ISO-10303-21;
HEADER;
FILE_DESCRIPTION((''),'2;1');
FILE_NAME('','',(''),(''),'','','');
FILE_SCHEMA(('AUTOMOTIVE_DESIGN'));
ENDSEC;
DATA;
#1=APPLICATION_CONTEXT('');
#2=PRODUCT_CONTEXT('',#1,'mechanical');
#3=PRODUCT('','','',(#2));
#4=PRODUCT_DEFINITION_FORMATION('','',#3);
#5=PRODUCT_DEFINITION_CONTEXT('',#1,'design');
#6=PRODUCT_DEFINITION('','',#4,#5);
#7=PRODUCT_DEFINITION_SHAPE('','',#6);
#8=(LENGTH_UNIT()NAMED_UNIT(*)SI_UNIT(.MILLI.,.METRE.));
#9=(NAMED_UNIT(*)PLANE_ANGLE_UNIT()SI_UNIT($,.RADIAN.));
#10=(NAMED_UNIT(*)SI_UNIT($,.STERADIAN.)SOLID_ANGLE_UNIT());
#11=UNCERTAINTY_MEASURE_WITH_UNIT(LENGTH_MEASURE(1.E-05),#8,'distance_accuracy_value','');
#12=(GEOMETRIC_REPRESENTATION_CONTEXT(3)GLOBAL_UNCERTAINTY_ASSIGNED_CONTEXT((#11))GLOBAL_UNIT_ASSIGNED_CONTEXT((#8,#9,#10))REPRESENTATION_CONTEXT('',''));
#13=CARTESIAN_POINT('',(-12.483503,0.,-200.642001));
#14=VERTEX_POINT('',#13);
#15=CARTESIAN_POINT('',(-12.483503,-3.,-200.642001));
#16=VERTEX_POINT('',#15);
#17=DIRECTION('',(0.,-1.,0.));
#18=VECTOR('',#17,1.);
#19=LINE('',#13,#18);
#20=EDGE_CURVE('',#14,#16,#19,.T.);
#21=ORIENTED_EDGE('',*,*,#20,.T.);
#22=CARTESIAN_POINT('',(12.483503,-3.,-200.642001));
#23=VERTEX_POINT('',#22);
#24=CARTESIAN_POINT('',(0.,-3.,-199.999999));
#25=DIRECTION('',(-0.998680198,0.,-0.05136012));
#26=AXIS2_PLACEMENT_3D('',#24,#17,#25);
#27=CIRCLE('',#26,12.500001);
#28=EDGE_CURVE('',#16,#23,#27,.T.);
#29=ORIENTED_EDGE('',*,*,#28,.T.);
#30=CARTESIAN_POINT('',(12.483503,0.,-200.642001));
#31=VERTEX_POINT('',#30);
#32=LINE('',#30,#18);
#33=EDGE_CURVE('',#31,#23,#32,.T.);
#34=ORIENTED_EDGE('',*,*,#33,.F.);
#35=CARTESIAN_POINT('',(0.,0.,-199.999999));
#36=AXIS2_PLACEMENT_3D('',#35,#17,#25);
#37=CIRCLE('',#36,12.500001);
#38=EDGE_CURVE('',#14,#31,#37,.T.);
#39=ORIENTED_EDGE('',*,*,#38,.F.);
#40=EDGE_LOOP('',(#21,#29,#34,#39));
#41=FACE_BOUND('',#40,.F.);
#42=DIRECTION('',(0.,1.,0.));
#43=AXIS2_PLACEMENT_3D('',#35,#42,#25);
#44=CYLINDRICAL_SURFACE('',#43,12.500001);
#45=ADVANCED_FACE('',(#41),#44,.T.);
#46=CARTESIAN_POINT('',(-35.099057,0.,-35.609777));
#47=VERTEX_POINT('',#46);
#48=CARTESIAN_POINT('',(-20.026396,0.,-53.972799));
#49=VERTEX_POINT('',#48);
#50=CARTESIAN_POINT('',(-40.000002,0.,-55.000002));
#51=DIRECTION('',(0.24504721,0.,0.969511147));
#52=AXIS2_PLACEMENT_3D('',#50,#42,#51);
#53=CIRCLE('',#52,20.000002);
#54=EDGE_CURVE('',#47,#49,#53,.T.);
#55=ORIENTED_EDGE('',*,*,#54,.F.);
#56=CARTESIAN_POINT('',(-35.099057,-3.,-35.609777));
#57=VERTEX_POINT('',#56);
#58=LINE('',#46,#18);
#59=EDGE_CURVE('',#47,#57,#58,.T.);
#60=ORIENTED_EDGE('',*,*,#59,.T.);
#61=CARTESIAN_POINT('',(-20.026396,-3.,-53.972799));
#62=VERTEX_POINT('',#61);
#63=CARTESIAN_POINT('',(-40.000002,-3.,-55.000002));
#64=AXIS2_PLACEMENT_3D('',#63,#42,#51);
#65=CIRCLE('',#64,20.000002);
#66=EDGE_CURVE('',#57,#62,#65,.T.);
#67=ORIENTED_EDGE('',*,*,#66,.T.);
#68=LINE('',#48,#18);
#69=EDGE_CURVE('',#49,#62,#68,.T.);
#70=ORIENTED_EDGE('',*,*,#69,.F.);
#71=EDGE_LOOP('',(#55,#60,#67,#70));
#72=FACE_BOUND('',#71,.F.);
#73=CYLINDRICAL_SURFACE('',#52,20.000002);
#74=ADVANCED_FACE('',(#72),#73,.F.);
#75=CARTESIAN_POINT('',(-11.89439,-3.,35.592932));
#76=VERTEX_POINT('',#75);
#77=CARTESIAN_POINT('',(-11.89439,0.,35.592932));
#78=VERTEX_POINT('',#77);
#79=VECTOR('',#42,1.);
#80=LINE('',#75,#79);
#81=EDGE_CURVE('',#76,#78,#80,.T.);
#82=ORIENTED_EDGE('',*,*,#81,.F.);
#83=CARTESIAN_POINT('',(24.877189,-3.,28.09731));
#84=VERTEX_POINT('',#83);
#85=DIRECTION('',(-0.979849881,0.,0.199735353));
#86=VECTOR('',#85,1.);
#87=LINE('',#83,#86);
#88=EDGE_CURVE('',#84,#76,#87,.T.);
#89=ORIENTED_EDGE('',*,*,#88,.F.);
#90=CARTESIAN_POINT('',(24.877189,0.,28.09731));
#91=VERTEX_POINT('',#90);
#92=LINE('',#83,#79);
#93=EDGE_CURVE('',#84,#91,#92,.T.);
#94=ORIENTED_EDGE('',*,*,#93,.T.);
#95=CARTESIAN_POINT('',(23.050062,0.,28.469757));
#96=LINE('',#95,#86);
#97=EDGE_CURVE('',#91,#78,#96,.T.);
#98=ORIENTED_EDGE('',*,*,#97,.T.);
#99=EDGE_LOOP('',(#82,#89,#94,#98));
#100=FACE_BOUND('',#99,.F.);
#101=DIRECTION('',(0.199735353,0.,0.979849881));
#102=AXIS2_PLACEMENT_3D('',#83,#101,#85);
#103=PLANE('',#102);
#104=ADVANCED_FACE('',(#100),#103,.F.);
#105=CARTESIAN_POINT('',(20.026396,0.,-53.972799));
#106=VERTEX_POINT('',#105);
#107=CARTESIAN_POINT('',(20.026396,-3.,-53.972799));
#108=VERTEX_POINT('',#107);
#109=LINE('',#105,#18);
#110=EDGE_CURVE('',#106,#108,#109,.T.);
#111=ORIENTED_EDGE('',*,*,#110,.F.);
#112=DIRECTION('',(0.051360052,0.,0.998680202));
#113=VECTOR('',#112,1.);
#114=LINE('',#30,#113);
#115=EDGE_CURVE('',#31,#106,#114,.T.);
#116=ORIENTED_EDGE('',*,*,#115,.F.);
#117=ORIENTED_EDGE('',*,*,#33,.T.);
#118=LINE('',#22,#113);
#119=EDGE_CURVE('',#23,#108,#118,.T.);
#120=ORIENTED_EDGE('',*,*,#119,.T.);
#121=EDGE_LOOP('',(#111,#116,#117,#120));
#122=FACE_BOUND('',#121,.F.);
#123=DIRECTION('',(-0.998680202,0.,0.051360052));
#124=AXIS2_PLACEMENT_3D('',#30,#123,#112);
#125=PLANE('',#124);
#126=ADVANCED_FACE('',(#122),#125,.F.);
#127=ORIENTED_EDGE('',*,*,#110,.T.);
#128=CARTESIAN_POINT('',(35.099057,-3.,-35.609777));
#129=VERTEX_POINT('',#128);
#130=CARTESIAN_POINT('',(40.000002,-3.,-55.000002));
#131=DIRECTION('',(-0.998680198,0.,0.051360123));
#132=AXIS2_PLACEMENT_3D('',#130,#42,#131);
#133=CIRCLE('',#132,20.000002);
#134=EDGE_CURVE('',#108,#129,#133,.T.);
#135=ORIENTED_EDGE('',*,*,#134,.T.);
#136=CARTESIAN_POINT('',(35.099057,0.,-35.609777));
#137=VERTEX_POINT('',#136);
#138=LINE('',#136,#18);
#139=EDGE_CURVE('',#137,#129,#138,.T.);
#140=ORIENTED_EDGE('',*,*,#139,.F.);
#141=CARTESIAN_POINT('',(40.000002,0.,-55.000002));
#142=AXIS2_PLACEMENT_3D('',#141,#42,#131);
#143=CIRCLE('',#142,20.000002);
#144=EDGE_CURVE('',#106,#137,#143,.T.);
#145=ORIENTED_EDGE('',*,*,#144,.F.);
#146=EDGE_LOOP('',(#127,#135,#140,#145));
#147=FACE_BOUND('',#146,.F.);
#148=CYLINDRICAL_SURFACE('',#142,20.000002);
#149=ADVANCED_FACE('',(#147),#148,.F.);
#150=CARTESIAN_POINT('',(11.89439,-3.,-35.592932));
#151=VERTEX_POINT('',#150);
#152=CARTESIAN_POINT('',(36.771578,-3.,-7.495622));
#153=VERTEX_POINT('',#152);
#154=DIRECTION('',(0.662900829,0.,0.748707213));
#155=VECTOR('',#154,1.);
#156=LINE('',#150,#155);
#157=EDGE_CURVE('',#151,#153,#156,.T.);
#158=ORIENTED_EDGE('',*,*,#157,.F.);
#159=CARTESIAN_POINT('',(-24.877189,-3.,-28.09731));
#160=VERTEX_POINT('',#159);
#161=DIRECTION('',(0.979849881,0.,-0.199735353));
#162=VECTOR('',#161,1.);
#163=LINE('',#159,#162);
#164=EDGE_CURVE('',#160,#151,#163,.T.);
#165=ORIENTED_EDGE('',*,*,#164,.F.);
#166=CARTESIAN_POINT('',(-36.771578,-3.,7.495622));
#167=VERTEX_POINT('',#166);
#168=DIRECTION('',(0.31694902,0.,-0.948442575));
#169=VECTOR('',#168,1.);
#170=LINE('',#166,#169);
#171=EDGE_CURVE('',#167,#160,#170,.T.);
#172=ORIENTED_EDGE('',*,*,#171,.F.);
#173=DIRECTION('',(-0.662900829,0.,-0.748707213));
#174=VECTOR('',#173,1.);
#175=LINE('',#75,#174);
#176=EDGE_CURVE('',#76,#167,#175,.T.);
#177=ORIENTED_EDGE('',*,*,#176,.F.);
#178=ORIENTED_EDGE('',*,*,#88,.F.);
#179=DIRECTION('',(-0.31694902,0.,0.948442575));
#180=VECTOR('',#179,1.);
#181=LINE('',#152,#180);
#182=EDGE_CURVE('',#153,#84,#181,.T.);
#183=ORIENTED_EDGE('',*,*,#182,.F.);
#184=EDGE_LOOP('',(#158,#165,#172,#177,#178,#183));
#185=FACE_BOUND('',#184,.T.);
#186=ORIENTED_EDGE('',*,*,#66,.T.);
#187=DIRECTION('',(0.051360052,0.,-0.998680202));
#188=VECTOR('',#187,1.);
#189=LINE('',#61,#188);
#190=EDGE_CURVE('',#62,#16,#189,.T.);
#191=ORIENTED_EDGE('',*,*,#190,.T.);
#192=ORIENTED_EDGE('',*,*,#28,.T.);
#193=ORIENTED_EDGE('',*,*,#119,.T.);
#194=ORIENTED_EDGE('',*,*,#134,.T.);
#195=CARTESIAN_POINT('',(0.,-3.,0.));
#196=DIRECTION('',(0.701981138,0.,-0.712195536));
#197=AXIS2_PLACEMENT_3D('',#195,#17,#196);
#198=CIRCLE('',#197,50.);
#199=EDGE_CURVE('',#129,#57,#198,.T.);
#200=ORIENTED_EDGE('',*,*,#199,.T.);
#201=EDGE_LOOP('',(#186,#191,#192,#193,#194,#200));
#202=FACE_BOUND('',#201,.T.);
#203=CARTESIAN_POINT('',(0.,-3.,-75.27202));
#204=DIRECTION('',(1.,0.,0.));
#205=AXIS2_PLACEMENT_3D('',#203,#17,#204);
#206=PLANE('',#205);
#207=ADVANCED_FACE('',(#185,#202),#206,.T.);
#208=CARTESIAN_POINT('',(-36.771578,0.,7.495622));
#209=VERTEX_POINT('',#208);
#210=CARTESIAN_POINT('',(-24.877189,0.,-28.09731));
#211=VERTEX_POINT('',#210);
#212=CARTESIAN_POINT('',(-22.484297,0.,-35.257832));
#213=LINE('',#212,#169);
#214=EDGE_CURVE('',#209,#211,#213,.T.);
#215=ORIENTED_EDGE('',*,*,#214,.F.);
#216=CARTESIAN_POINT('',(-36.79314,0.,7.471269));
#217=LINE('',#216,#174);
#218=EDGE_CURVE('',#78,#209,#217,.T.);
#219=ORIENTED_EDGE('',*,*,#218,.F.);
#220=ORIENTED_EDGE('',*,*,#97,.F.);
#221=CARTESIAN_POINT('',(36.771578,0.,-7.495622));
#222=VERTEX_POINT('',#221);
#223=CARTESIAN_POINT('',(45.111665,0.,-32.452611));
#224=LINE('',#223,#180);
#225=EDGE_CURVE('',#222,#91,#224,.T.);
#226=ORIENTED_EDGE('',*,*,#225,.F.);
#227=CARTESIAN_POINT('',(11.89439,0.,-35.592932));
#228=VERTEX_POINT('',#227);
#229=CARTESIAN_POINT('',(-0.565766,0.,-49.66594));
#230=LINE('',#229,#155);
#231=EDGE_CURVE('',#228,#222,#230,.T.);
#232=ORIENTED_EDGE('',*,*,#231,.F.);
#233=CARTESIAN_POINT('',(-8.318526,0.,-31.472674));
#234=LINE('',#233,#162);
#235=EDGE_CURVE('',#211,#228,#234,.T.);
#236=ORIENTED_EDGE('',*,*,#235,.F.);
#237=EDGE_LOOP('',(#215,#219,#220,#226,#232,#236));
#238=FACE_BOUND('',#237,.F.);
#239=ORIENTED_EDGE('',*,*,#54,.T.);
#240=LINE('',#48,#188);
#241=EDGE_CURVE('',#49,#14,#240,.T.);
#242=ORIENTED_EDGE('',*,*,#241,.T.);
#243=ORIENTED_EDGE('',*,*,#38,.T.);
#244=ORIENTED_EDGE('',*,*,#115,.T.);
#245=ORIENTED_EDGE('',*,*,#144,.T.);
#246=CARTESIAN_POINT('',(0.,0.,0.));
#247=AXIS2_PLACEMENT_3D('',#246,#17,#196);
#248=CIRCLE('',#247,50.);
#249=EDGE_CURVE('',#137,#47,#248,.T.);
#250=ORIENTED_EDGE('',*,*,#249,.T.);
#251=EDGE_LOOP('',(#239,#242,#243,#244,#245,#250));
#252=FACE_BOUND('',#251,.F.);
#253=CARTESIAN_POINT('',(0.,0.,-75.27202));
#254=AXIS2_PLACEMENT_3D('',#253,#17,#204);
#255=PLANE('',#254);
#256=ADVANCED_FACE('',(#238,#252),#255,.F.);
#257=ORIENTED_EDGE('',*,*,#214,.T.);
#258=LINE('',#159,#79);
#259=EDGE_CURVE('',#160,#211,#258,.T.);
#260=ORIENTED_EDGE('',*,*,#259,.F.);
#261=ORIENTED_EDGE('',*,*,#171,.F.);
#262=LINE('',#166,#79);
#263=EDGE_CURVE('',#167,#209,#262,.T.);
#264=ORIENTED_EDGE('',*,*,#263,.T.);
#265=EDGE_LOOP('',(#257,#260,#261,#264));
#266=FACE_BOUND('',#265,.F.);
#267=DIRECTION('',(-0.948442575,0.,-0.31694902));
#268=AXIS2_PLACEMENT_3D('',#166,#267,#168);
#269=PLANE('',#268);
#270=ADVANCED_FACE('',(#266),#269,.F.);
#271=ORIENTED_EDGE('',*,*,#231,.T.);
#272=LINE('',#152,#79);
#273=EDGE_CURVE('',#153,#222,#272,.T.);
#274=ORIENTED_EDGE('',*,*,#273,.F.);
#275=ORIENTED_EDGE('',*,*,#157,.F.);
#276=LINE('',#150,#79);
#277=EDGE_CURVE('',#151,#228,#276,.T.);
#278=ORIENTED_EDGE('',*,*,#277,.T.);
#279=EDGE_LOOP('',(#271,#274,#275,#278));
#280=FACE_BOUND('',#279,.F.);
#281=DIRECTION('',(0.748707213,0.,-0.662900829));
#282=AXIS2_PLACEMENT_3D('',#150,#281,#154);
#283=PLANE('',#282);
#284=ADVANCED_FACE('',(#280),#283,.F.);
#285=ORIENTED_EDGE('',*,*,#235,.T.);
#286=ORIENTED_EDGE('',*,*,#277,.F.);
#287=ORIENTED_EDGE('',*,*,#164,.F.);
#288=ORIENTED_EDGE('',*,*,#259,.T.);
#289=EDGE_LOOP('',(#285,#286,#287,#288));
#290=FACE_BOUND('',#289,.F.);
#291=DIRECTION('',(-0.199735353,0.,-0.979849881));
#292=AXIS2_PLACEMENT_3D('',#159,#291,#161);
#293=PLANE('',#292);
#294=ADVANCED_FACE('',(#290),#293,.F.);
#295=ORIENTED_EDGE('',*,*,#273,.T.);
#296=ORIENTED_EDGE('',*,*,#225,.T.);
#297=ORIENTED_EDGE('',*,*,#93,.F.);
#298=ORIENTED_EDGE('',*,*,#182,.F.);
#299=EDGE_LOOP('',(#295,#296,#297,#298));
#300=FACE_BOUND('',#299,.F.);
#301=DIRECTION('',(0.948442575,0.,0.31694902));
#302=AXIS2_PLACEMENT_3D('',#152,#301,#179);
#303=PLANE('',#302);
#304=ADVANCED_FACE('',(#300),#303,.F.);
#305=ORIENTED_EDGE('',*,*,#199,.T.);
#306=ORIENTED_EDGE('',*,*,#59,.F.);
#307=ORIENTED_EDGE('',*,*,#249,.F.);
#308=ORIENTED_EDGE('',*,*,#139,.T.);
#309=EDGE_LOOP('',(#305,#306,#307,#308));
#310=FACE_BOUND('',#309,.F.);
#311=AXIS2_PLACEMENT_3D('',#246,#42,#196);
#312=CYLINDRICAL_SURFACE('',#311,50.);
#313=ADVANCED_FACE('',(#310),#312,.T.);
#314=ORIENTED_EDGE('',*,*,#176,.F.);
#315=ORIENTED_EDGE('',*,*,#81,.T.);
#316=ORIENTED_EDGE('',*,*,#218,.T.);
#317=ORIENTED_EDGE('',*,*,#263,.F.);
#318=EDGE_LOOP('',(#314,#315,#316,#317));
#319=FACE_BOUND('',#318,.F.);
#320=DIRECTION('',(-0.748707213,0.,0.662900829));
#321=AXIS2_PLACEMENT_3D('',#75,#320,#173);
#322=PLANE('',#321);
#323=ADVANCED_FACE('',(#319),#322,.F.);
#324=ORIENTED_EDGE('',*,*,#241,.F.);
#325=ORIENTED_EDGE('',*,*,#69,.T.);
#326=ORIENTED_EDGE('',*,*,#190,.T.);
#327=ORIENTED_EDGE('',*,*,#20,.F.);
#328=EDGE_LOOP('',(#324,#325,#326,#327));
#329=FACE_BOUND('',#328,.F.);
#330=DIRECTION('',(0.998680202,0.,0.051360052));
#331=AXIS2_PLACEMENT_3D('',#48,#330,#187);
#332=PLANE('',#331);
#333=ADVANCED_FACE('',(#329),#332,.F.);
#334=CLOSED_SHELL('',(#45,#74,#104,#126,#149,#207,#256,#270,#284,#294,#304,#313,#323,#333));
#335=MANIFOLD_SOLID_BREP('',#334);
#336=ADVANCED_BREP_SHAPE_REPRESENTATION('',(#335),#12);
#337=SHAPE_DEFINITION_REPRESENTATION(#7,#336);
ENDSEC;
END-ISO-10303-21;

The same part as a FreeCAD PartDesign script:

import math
import FreeCAD as App
import Part
import Sketcher
Q = App.Units.Quantity

doc = App.newDocument("Part")
body = doc.addObject("PartDesign::Body", "Body")

sketch1 = body.newObject("Sketcher::SketchObject", "Sketch")
sketch1.AttachmentSupport = (doc.getObject("XZ_Plane"), [""])
sketch1.MapMode = "FlatFace"
sketch1.addGeometry([
    Part.ArcOfCircle(Part.Circle(App.Vector(-40.000002, -55.000002, 0), App.Vector(0, 0, 1), 20.000002), math.radians(2.944014), math.radians(75.815376)),
    Part.LineSegment(App.Vector(-20.026396, -53.972799, 0), App.Vector(-12.483503, -200.642001, 0)),
    Part.ArcOfCircle(Part.Circle(App.Vector(0, -199.999999, 0), App.Vector(0, 0, 1), 12.500001), math.radians(-177.055987), math.radians(-2.944013)),
    Part.LineSegment(App.Vector(12.483503, -200.642001, 0), App.Vector(20.026396, -53.972799, 0)),
    Part.ArcOfCircle(Part.Circle(App.Vector(40.000002, -55.000002, 0), App.Vector(0, 0, 1), 20.000002), math.radians(104.184624), math.radians(177.055986)),
    Part.ArcOfCircle(Part.Circle(App.Vector(0, 0, 0), App.Vector(0, 0, 1), 50), math.radians(-45.413832), math.radians(225.413832)),
], False)
sketch1.addConstraint([
    Sketcher.Constraint("Tangent", 0, 1, 1, 1),
    Sketcher.Constraint("Tangent", 1, 2, 2, 1),
    Sketcher.Constraint("Tangent", 2, 2, 3, 1),
    Sketcher.Constraint("Tangent", 3, 2, 4, 2),
    Sketcher.Constraint("Coincident", 4, 1, 5, 1),
    Sketcher.Constraint("Coincident", 5, 2, 0, 2),
    Sketcher.Constraint("Coincident", 5, 3, -1, 1),
    Sketcher.Constraint("Equal", 0, 4),
    Sketcher.Constraint("Symmetric", 0, 3, 4, 3, -2),
    Sketcher.Constraint("PointOnObject", 2, 3, -2),
    Sketcher.Constraint("Radius", 0, Q("20.000002 mm")),
    Sketcher.Constraint("Radius", 5, Q("50 mm")),
    Sketcher.Constraint("Radius", 2, Q("12.500001 mm")),
    Sketcher.Constraint("DistanceX", 0, 3, -1, 1, Q("40.000002 mm")),
    Sketcher.Constraint("DistanceY", 0, 3, -1, 1, Q("55.000002 mm")),
    Sketcher.Constraint("DistanceY", 2, 3, -1, 1, Q("199.999999 mm")),
])
pad1 = body.newObject("PartDesign::Pad", "Pad")
pad1.Profile = sketch1
pad1.Length = 3

sketch2 = body.newObject("Sketcher::SketchObject", "Sketch001")
sketch2.AttachmentSupport = (doc.getObject("XZ_Plane"), [""])
sketch2.MapMode = "FlatFace"
sketch2.AttachmentOffset = App.Placement(App.Vector(0, 0, 3), App.Rotation())
sketch2.addGeometry([
    Part.LineSegment(App.Vector(-24.877189, -28.09731, 0), App.Vector(11.89439, -35.592932, 0)),
    Part.LineSegment(App.Vector(11.89439, -35.592932, 0), App.Vector(36.771578, -7.495622, 0)),
    Part.LineSegment(App.Vector(36.771578, -7.495622, 0), App.Vector(24.877189, 28.09731, 0)),
    Part.LineSegment(App.Vector(24.877189, 28.09731, 0), App.Vector(-11.89439, 35.592932, 0)),
    Part.LineSegment(App.Vector(-11.89439, 35.592932, 0), App.Vector(-36.771578, 7.495622, 0)),
    Part.LineSegment(App.Vector(-36.771578, 7.495622, 0), App.Vector(-24.877189, -28.09731, 0)),
], False)
sketch2.addConstraint([
    Sketcher.Constraint("Coincident", 0, 2, 1, 1),
    Sketcher.Constraint("Coincident", 1, 2, 2, 1),
    Sketcher.Constraint("Coincident", 2, 2, 3, 1),
    Sketcher.Constraint("Coincident", 3, 2, 4, 1),
    Sketcher.Constraint("Coincident", 4, 2, 5, 1),
    Sketcher.Constraint("Coincident", 5, 2, 0, 1),
    Sketcher.Constraint("Symmetric", 0, 2, 3, 2, -1, 1),
    Sketcher.Constraint("Symmetric", 1, 2, 4, 2, -1, 1),
    Sketcher.Constraint("Symmetric", 2, 2, 5, 2, -1, 1),
    Sketcher.Constraint("Equal", 0, 1),
    Sketcher.Constraint("Equal", 1, 2),
    Sketcher.Constraint("DistanceX", 0, 2, 2, 2, Q("12.982799 mm")),
    Sketcher.Constraint("Distance", 0, Q("37.527768 mm")),
    Sketcher.Constraint("DistanceX", -1, 1, 0, 2, Q("11.89439 mm")),
    Sketcher.Constraint("DistanceY", 0, 2, -1, 1, Q("35.592932 mm")),
])
pocket1 = body.newObject("PartDesign::Pocket", "Pocket")
pocket1.Profile = sketch2
pocket1.Length = 25

doc.recompute()
